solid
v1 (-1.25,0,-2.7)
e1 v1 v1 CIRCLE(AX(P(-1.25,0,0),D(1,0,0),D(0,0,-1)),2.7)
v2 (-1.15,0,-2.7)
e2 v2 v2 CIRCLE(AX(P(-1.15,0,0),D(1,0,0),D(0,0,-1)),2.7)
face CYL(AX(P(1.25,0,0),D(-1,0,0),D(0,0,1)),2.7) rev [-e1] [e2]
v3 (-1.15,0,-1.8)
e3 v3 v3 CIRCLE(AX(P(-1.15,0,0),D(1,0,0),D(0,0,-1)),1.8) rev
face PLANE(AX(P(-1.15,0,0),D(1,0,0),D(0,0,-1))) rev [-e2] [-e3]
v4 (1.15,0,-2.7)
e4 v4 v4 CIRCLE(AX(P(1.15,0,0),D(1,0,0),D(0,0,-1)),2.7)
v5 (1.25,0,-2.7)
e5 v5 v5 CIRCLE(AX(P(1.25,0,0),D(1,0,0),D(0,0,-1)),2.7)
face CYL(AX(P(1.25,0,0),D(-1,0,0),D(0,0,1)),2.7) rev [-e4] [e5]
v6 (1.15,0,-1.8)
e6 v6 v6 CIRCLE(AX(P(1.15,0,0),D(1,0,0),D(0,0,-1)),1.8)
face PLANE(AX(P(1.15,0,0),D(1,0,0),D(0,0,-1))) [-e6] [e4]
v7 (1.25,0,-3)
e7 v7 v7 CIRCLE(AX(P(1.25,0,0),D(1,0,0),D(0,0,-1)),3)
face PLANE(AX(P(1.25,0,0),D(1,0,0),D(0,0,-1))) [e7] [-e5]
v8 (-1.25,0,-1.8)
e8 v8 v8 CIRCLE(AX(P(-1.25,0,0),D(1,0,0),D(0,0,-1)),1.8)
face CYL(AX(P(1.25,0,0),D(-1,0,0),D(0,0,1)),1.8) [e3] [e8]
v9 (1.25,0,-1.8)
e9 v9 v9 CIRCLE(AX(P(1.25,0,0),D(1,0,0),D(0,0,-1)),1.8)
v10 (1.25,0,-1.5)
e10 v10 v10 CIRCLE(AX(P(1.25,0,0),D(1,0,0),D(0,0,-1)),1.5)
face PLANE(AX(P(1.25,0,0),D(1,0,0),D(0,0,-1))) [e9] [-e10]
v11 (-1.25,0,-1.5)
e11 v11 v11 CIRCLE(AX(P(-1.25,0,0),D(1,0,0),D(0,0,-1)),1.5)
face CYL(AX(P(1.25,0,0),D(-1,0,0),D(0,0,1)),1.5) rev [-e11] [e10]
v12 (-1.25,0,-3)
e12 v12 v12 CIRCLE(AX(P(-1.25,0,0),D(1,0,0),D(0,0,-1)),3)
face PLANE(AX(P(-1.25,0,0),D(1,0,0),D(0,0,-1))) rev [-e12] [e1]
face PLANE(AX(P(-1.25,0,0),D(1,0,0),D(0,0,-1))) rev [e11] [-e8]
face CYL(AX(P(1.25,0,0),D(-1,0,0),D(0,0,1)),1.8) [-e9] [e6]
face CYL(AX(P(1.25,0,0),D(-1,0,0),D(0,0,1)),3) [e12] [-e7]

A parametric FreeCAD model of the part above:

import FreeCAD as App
import Part
import Sketcher

V = App.Vector
Q = App.Units.Quantity

doc = App.newDocument("Part")
params = doc.addObject("Spreadsheet::Sheet", "Params")
for row, (alias, value) in enumerate([
    ("sketch1_diameter", "6 mm"),
    ("sketch1_diameter2", "5.4 mm"),
    ("pad1_length", "2.5 mm"),
    ("sketch2_diameter", "3 mm"),
    ("sketch2_diameter2", "3.6 mm"),
    ("pad2_length", "2.5 mm"),
    ("sketch3_diameter", "5.4 mm"),
    ("sketch3_diameter2", "3.6 mm"),
    ("pad3_length", "2.3 mm"),
], start=1):
    params.set(f"A{row}", alias)
    params.set(f"B{row}", "=" + value)
    params.setAlias(f"B{row}", alias)

body = doc.addObject("PartDesign::Body", "Body")

# Sketch on YZ plane
sketch1 = body.newObject("Sketcher::SketchObject", "Sketch")
sketch1.AttachmentSupport = (doc.getObject("YZ_Plane"), [""])
sketch1.MapMode = "FlatFace"
sketch1.addGeometry([
    Part.Circle(V(0, 0, 0), V(0, 0, 1), 3),
    Part.Circle(V(0, 0, 0), V(0, 0, 1), 2.7),
], False)
sketch1.addConstraint([
    Sketcher.Constraint("Coincident", 0, 3, -1, 1),
    Sketcher.Constraint("Coincident", 1, 3, -1, 1),
    Sketcher.Constraint("Diameter", 0, Q("6 mm")),
    Sketcher.Constraint("Diameter", 1, Q("5.4 mm")),
])
sketch1.setExpression("Constraints[2]", "Params.sketch1_diameter")
sketch1.setExpression("Constraints[3]", "Params.sketch1_diameter2")
pad1 = body.newObject("PartDesign::Pad", "Pad")
pad1.Profile = sketch1
pad1.setExpression("Length", "Params.pad1_length")
pad1.Midplane = True
body2 = doc.addObject("PartDesign::Body", "Body001")

# Sketch on YZ plane
sketch2 = body2.newObject("Sketcher::SketchObject", "Sketch001")
sketch2.AttachmentSupport = (doc.getObject("YZ_Plane001"), [""])
sketch2.MapMode = "FlatFace"
sketch2.addGeometry([
    Part.Circle(V(0, 0, 0), V(0, 0, 1), 1.8),
    Part.Circle(V(0, 0, 0), V(0, 0, 1), 1.5),
], False)
sketch2.addConstraint([
    Sketcher.Constraint("Coincident", 0, 3, -1, 1),
    Sketcher.Constraint("Coincident", 1, 3, -1, 1),
    Sketcher.Constraint("Diameter", 1, Q("3 mm")),
    Sketcher.Constraint("Diameter", 0, Q("3.6 mm")),
])
sketch2.setExpression("Constraints[2]", "Params.sketch2_diameter")
sketch2.setExpression("Constraints[3]", "Params.sketch2_diameter2")
pad2 = body2.newObject("PartDesign::Pad", "Pad001")
pad2.Profile = sketch2
pad2.setExpression("Length", "Params.pad2_length")
pad2.Midplane = True
body.AllowCompound = True
doc.recompute()

boolean = body.newObject("PartDesign::Boolean", "Boolean")
boolean.Type = "Fuse"
boolean.addObjects([body2])

# Sketch on YZ plane
sketch3 = body.newObject("Sketcher::SketchObject", "Sketch002")
sketch3.AttachmentSupport = (doc.getObject("YZ_Plane"), [""])
sketch3.MapMode = "FlatFace"
sketch3.addGeometry([
    Part.Circle(V(0, 0, 0), V(0, 0, 1), 2.7),
    Part.Circle(V(0, 0, 0), V(0, 0, 1), 1.8),
], False)
sketch3.addConstraint([
    Sketcher.Constraint("Coincident", 0, 3, -1, 1),
    Sketcher.Constraint("Coincident", 1, 3, -1, 1),
    Sketcher.Constraint("Diameter", 0, Q("5.4 mm")),
    Sketcher.Constraint("Diameter", 1, Q("3.6 mm")),
])
sketch3.setExpression("Constraints[2]", "Params.sketch3_diameter")
sketch3.setExpression("Constraints[3]", "Params.sketch3_diameter2")
pad3 = body.newObject("PartDesign::Pad", "Pad002")
pad3.Profile = sketch3
pad3.setExpression("Length", "Params.pad3_length")
pad3.Midplane = True

doc.recompute()
